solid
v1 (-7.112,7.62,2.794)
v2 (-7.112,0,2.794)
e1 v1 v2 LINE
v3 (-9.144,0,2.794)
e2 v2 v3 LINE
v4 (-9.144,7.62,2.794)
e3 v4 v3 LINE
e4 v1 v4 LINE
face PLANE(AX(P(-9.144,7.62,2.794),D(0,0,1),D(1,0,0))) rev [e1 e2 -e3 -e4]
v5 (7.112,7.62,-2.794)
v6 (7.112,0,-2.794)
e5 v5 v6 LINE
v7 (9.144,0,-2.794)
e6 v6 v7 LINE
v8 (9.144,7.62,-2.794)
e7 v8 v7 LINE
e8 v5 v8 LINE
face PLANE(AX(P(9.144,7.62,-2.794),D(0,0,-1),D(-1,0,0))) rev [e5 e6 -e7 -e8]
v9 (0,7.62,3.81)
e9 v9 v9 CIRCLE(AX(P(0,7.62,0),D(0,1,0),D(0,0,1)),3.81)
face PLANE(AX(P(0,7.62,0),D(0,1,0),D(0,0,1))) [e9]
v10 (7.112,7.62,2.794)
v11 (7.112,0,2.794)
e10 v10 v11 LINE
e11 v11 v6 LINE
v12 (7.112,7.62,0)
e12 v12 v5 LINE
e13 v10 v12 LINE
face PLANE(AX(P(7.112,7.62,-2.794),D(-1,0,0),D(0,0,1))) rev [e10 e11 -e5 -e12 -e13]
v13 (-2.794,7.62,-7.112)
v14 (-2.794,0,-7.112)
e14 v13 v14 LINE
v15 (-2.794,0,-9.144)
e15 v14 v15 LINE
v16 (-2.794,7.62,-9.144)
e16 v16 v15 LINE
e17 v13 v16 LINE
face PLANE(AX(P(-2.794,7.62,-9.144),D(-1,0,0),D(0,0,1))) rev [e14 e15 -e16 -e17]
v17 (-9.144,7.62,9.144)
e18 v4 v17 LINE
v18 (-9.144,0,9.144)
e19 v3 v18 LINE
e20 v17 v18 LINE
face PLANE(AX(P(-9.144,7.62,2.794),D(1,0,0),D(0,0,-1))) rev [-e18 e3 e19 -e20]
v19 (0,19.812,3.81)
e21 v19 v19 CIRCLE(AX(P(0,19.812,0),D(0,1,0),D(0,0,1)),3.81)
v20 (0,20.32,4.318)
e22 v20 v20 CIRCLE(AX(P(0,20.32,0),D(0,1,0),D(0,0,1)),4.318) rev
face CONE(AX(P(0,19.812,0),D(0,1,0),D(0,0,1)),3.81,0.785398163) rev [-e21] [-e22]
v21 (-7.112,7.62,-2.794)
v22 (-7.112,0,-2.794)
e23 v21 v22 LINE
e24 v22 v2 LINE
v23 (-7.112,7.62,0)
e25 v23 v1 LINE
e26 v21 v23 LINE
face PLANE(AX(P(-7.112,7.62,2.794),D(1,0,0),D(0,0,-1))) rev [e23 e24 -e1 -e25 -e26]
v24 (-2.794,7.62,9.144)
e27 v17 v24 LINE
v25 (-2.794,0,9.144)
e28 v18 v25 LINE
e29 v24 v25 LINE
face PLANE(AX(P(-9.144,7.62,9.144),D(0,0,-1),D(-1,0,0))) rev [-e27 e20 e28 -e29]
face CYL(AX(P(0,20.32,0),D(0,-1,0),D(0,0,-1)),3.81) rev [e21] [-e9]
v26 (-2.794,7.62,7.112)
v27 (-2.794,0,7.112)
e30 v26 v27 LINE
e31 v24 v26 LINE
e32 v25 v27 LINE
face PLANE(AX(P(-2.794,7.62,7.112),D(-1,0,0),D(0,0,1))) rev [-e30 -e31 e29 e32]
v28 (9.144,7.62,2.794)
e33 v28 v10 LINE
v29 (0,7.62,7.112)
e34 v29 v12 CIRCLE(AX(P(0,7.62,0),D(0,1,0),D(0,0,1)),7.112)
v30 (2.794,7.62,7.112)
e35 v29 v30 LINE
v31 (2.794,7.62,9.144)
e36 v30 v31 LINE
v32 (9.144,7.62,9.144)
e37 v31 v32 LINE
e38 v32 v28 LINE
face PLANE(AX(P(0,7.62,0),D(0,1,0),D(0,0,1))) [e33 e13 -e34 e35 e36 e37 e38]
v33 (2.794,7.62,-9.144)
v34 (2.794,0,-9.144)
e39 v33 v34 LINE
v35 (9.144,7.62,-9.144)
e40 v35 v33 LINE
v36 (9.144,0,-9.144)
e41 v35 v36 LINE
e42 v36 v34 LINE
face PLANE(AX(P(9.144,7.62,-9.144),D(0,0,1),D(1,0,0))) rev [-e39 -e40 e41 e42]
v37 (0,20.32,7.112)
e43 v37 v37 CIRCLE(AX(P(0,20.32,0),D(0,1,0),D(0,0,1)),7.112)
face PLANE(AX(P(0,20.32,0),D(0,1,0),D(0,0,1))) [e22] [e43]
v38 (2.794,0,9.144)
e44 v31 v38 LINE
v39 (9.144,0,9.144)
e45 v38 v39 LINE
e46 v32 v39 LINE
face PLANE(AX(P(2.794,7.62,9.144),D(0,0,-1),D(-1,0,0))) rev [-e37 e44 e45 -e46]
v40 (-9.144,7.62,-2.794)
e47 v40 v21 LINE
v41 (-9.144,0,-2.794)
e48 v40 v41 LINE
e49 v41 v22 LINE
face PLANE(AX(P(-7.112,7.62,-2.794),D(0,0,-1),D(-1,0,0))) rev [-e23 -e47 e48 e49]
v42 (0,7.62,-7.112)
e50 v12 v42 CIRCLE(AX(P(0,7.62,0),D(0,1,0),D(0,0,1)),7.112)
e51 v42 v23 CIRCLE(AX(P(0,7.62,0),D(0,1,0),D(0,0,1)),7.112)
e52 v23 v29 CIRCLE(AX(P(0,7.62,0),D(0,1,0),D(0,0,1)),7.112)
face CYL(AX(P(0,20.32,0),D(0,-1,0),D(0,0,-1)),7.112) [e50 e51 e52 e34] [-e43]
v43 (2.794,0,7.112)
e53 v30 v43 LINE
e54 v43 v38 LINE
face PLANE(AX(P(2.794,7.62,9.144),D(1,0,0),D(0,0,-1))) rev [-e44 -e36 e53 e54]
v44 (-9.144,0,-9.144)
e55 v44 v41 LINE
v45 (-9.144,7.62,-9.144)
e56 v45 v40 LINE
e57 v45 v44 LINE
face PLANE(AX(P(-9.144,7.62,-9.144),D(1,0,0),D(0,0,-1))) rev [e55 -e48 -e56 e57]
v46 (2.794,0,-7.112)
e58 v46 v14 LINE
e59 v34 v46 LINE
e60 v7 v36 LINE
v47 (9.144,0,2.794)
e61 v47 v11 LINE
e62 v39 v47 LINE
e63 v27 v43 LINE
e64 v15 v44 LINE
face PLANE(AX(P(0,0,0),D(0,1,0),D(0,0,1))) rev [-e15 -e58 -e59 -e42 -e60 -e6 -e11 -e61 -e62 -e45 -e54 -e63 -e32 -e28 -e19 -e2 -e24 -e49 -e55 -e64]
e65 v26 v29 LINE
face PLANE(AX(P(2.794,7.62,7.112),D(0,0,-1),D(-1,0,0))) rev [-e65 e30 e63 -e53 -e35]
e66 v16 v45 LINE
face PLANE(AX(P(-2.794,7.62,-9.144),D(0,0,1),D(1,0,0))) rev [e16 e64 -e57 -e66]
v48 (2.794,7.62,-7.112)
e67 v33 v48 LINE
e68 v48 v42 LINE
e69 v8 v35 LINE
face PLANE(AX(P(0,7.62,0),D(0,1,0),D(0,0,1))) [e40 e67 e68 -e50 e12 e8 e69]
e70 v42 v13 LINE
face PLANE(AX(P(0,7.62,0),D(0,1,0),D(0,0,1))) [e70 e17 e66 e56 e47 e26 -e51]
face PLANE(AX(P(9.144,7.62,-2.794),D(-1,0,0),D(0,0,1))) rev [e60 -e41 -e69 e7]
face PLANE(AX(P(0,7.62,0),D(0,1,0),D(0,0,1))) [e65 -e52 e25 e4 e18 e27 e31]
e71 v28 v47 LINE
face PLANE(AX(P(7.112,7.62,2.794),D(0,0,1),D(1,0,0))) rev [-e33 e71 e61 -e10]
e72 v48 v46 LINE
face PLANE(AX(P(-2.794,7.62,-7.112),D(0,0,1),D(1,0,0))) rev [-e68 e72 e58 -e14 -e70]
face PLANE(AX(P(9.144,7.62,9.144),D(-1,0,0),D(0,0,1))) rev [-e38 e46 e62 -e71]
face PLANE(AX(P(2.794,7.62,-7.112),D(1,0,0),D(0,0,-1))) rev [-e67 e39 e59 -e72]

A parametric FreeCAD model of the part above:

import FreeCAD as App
import Part
import Sketcher
Q = App.Units.Quantity


def edges_at(feature, points):
    """Names of the edges that pass closest to the given points."""
    edges = feature.Shape.Edges
    near = lambda p: min(range(len(edges)), key=lambda i: edges[i].distToShape(Part.Vertex(*p))[0])
    return sorted({f"Edge{near(p) + 1}" for p in points})


def add_polygon(sketch, points):
    """Adds a closed chain of lines whose ends are joined by coincident constraints."""
    first, n = sketch.GeometryCount, len(points)
    for a, b in zip(points, points[1:] + points[:1]):
        sketch.addGeometry(Part.LineSegment(App.Vector(*a, 0), App.Vector(*b, 0)), False)
    for i in range(n):
        sketch.addConstraint(Sketcher.Constraint("Coincident", first + i, 2, first + (i + 1) % n, 1))

doc = App.newDocument("Part")
body = doc.addObject("PartDesign::Body", "Body")

# Sketch on XZ plane
sketch1 = doc.addObject("Sketcher::SketchObject", "Sketch")
body.addObject(sketch1)
sketch1.AttachmentSupport = (doc.XZ_Plane, [""])
sketch1.MapMode = "FlatFace"
add_polygon(sketch1, [(7.112, -2.794), (9.144, -2.794), (9.144, -9.144), (2.794, -9.144), (2.794, -7.112), (-2.794, -7.112), (-2.794, -9.144), (-9.144, -9.144), (-9.144, -2.794), (-7.112, -2.794), (-7.112, 2.794), (-9.144, 2.794), (-9.144, 9.144), (-2.794, 9.144), (-2.794, 7.112), (2.794, 7.112), (2.794, 9.144), (9.144, 9.144), (9.144, 2.794), (7.112, 2.794)])  # lines 0-19
sketch1.addConstraint(Sketcher.Constraint("Horizontal", 0))
sketch1.addConstraint(Sketcher.Constraint("Vertical", 1))
sketch1.addConstraint(Sketcher.Constraint("Horizontal", 2))
sketch1.addConstraint(Sketcher.Constraint("Vertical", 3))
sketch1.addConstraint(Sketcher.Constraint("Horizontal", 4))
sketch1.addConstraint(Sketcher.Constraint("Vertical", 5))
sketch1.addConstraint(Sketcher.Constraint("Horizontal", 6))
sketch1.addConstraint(Sketcher.Constraint("Vertical", 7))
sketch1.addConstraint(Sketcher.Constraint("Horizontal", 8))
sketch1.addConstraint(Sketcher.Constraint("Vertical", 9))
sketch1.addConstraint(Sketcher.Constraint("Horizontal", 10))
sketch1.addConstraint(Sketcher.Constraint("Vertical", 11))
sketch1.addConstraint(Sketcher.Constraint("Horizontal", 12))
sketch1.addConstraint(Sketcher.Constraint("Vertical", 13))
sketch1.addConstraint(Sketcher.Constraint("Horizontal", 14))
sketch1.addConstraint(Sketcher.Constraint("Vertical", 15))
sketch1.addConstraint(Sketcher.Constraint("Horizontal", 16))
sketch1.addConstraint(Sketcher.Constraint("Vertical", 17))
sketch1.addConstraint(Sketcher.Constraint("Horizontal", 18))
sketch1.addConstraint(Sketcher.Constraint("Vertical", 19))
sketch1.addConstraint(Sketcher.Constraint("Symmetric", 0, 2, 10, 2, -1, 1))
sketch1.addConstraint(Sketcher.Constraint("Symmetric", 2, 2, 12, 2, -1, 1))
sketch1.addConstraint(Sketcher.Constraint("Symmetric", 4, 2, 14, 2, -1, 1))
sketch1.addConstraint(Sketcher.Constraint("Symmetric", 6, 2, 16, 2, -1, 1))
sketch1.addConstraint(Sketcher.Constraint("Symmetric", 8, 2, 18, 2, -1, 1))
sketch1.addConstraint(Sketcher.Constraint("Symmetric", 2, 2, 5, 2, -2))
sketch1.addConstraint(Sketcher.Constraint("Symmetric", 0, 2, 7, 2, -2))
sketch1.addConstraint(Sketcher.Constraint("Equal", 16, 1))
sketch1.addConstraint(Sketcher.Constraint("Equal", 18, 3))
sketch1.addConstraint(Sketcher.Constraint("Equal", 14, 9))
sketch1.addConstraint(Sketcher.Constraint("DistanceX", 0, 1, 0, 2, Q("0.08 in")))
sketch1.addConstraint(Sketcher.Constraint("DistanceX", 2, 2, 2, 1, Q("0.25 in")))
sketch1.addConstraint(Sketcher.Constraint("DistanceX", 4, 2, 4, 1, Q("0.22 in")))
pad1 = doc.addObject("PartDesign::Pad", "Pad")
body.addObject(pad1)
pad1.Profile = sketch1
pad1.Length = Q("0.3 in")
pad1.Reversed = True

# Sketch on XZ plane
sketch2 = doc.addObject("Sketcher::SketchObject", "Sketch001")
body.addObject(sketch2)
sketch2.AttachmentSupport = (doc.XZ_Plane, [""])
sketch2.MapMode = "FlatFace"
sketch2.AttachmentOffset = App.Placement(App.Vector(0, 0, -0.3 * 25.4), App.Rotation())
sketch2.addGeometry(Part.Circle(App.Vector(0, 0, 0), App.Vector(0, 0, 1), 7.112), False)
sketch2.addGeometry(Part.Circle(App.Vector(0, 0, 0), App.Vector(0, 0, 1), 3.81), False)
sketch2.addConstraint(Sketcher.Constraint("Coincident", 0, 3, -1, 1))
sketch2.addConstraint(Sketcher.Constraint("Coincident", 1, 3, -1, 1))
sketch2.addConstraint(Sketcher.Constraint("Diameter", 1, Q("0.3 in")))
sketch2.addConstraint(Sketcher.Constraint("Diameter", 0, Q("0.56 in")))
pad2 = doc.addObject("PartDesign::Pad", "Pad001")
body.addObject(pad2)
pad2.Profile = sketch2
pad2.Length = Q("0.5 in")
pad2.Reversed = True
doc.recompute()

chamfer = doc.addObject("PartDesign::Chamfer", "Chamfer")
body.addObject(chamfer)
chamfer.Base = (pad2, edges_at(pad2, [(0, 20.32, -3.81)]))
chamfer.Size = Q("0.02 in")

doc.recompute()
